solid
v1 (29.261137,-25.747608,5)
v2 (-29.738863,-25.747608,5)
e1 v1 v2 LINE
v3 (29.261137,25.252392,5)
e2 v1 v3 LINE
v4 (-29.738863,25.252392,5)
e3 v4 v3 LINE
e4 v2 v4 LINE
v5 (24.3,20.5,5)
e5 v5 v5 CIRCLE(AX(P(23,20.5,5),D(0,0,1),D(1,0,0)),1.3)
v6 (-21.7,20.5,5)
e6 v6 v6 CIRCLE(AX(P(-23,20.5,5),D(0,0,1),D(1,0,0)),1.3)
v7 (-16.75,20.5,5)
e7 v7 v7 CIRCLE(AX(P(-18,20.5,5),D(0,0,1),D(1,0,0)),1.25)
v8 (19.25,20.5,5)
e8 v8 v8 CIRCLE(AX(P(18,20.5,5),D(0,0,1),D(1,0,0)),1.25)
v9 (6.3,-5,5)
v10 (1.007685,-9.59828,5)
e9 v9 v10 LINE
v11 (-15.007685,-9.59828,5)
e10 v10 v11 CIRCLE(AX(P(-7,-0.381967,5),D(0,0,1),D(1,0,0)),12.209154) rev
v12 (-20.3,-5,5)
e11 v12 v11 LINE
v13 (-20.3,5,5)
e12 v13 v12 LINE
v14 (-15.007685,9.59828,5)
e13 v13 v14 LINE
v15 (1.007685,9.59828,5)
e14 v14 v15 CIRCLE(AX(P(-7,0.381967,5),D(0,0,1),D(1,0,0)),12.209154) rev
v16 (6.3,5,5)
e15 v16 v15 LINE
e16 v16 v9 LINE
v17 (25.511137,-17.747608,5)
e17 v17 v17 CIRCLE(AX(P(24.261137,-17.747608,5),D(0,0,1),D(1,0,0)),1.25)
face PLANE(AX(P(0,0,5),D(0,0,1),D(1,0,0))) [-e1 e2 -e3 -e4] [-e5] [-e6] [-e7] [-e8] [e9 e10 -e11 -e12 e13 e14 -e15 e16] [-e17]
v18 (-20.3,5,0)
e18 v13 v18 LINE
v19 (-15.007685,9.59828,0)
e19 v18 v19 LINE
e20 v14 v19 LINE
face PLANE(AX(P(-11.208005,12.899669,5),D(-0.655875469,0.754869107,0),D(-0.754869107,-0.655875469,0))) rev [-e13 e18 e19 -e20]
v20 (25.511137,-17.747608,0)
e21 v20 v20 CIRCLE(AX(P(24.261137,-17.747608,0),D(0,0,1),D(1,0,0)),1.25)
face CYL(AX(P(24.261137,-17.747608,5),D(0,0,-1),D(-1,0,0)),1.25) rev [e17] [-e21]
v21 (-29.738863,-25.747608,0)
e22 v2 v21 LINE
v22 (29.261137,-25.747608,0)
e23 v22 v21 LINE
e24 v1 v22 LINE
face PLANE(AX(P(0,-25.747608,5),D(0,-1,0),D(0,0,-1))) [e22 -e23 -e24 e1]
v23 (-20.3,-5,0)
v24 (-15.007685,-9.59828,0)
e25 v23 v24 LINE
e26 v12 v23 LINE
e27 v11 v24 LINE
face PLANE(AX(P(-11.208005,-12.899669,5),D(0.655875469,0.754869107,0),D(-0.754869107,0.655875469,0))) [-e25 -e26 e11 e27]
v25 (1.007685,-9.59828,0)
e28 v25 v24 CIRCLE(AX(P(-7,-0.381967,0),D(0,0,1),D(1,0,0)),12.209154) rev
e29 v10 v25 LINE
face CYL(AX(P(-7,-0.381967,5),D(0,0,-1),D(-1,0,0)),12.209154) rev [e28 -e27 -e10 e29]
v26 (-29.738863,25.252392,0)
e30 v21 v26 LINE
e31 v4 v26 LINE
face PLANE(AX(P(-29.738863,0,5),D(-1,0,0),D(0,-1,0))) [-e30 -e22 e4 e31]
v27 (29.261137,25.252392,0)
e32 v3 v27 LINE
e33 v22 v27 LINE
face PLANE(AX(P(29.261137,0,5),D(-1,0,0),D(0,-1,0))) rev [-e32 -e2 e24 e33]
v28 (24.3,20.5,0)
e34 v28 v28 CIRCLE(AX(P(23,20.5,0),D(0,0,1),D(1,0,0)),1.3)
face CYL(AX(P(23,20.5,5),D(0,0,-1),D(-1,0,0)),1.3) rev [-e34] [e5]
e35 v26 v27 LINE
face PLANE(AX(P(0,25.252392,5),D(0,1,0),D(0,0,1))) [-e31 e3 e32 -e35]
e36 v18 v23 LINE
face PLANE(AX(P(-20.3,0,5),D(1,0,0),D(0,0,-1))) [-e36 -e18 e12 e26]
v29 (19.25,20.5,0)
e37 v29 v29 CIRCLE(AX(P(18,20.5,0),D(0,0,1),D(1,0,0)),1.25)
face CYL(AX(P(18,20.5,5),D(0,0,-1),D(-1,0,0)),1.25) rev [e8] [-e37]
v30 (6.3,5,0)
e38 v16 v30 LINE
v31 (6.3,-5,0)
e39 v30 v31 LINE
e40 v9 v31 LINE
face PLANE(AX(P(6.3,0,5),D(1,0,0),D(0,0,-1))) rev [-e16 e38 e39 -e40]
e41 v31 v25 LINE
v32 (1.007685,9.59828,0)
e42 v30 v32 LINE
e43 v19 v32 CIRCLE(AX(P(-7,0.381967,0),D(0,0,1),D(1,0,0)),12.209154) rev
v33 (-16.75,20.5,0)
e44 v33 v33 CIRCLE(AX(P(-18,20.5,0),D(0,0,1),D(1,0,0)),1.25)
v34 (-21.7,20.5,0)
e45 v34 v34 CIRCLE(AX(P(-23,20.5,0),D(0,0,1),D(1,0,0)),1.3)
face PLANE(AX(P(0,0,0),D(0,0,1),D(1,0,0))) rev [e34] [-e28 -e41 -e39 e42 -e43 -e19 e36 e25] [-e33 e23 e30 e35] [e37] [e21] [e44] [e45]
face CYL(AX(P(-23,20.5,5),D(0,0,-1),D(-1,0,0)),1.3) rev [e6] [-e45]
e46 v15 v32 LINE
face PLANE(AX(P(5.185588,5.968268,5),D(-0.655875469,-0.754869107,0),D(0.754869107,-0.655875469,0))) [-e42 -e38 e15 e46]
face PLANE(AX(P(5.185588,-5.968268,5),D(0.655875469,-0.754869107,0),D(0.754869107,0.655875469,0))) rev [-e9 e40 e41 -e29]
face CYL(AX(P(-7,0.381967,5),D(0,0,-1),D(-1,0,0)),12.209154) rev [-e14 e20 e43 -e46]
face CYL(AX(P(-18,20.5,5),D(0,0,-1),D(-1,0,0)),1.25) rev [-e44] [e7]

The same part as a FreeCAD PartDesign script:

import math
import FreeCAD as App
import Part
import Sketcher


def add_polygon(sketch, points):
    """Adds a closed chain of lines whose ends are joined by coincident constraints."""
    first, n = sketch.GeometryCount, len(points)
    for a, b in zip(points, points[1:] + points[:1]):
        sketch.addGeometry(Part.LineSegment(App.Vector(*a, 0), App.Vector(*b, 0)), False)
    for i in range(n):
        sketch.addConstraint(Sketcher.Constraint("Coincident", first + i, 2, first + (i + 1) % n, 1))

doc = App.newDocument("Part")
params = doc.addObject("Spreadsheet::Sheet", "Params")
for row, (alias, value) in enumerate([
    ("sketch1_diameter", "2.5 mm"),
    ("sketch1_diameter2", "2.6 mm"),
    ("sketch1_width", "59 mm"),
    ("sketch1_height", "51 mm"),
    ("sketch1_height2", "10 mm"),
    ("pad1_length", "5 mm"),
], start=1):
    params.set(f"A{row}", alias)
    params.set(f"B{row}", "=" + value)
    params.setAlias(f"B{row}", alias)

body = doc.addObject("PartDesign::Body", "Body")

# Sketch on XY plane
sketch1 = doc.addObject("Sketcher::SketchObject", "Sketch")
body.addObject(sketch1)
sketch1.AttachmentSupport = (doc.XY_Plane, [""])
sketch1.MapMode = "FlatFace"
add_polygon(sketch1, [(-29.7, 25.3), (-29.7, -25.7), (29.3, -25.7), (29.3, 25.3)])  # lines 0-3
sketch1.addGeometry(Part.LineSegment(App.Vector(-20.3, -5, 0), App.Vector(-20.3, 5, 0)), False)  # 4
sketch1.addGeometry(Part.LineSegment(App.Vector(-20.3, 5, 0), App.Vector(-15, 9.6, 0)), False)  # 5
sketch1.addGeometry(Part.ArcOfCircle(Part.Circle(App.Vector(-7, 0.4, 0), App.Vector(0, 0, 1), 12.2), math.radians(49), math.radians(131)), False)  # 6
sketch1.addGeometry(Part.LineSegment(App.Vector(1, 9.6, 0), App.Vector(6.3, 5, 0)), False)  # 7
sketch1.addGeometry(Part.LineSegment(App.Vector(6.3, 5, 0), App.Vector(6.3, -5, 0)), False)  # 8
sketch1.addGeometry(Part.LineSegment(App.Vector(6.3, -5, 0), App.Vector(1, -9.6, 0)), False)  # 9
sketch1.addGeometry(Part.ArcOfCircle(Part.Circle(App.Vector(-7, -0.4, 0), App.Vector(0, 0, 1), 12.2), math.radians(-131), math.radians(-49)), False)  # 10
sketch1.addGeometry(Part.LineSegment(App.Vector(-15, -9.6, 0), App.Vector(-20.3, -5, 0)), False)  # 11
sketch1.addGeometry(Part.Circle(App.Vector(24.3, -17.7, 0), App.Vector(0, 0, 1), 1.2), False)  # 12
sketch1.addGeometry(Part.Circle(App.Vector(-23, 20.5, 0), App.Vector(0, 0, 1), 1.3), False)  # 13
sketch1.addGeometry(Part.Circle(App.Vector(-18, 20.5, 0), App.Vector(0, 0, 1), 1.2), False)  # 14
sketch1.addGeometry(Part.Circle(App.Vector(18, 20.5, 0), App.Vector(0, 0, 1), 1.2), False)  # 15
sketch1.addGeometry(Part.Circle(App.Vector(23, 20.5, 0), App.Vector(0, 0, 1), 1.3), False)  # 16
sketch1.addConstraint([
    Sketcher.Constraint("Coincident", 4, 2, 5, 1),
    Sketcher.Constraint("Tangent", 5, 2, 6, 2),
    Sketcher.Constraint("Tangent", 6, 1, 7, 1),
    Sketcher.Constraint("Coincident", 7, 2, 8, 1),
    Sketcher.Constraint("Coincident", 8, 2, 9, 1),
    Sketcher.Constraint("Tangent", 9, 2, 10, 2),
    Sketcher.Constraint("Tangent", 10, 1, 11, 1),
    Sketcher.Constraint("Coincident", 11, 2, 4, 1),
    Sketcher.Constraint("Vertical", 0),
    Sketcher.Constraint("Horizontal", 1),
    Sketcher.Constraint("Vertical", 2),
    Sketcher.Constraint("Horizontal", 3),
    Sketcher.Constraint("Vertical", 4),
    Sketcher.Constraint("Vertical", 8),
    Sketcher.Constraint("Equal", 6, 10),
    Sketcher.Constraint("Equal", 12, 14),
    Sketcher.Constraint("Equal", 14, 15),
    Sketcher.Constraint("Equal", 13, 16),
    Sketcher.Constraint("Symmetric", 14, 3, 15, 3, -2),
    Sketcher.Constraint("Symmetric", 13, 3, 16, 3, -2),
    Sketcher.Constraint("Symmetric", 6, 3, 10, 3, -1),
    Sketcher.Constraint("Parallel", 5, 9),
    Sketcher.Constraint("Parallel", 7, 11),
    Sketcher.Constraint("Horizontal", 13, 3, 14, 3),
    Sketcher.Constraint("Horizontal", 5, 2, 6, 1),
    Sketcher.Constraint("Horizontal", 4, 2, 7, 2),
    Sketcher.Constraint("Diameter", 12, 2.5),
    Sketcher.Constraint("Diameter", 13, 2.6),
    Sketcher.Constraint("DistanceX", 1, 1, 1, 2, 59.0),
    Sketcher.Constraint("DistanceY", 0, 2, 0, 1, 51.0),
    Sketcher.Constraint("DistanceY", 4, 1, 4, 2, 10.0),
    Sketcher.Constraint("DistanceX", 6, 3, -1, 1, 7.0),
    Sketcher.Constraint("DistanceX", 13, 3, -1, 1, 23.0),
    Sketcher.Constraint("DistanceX", 14, 3, -1, 1, 18.0),
    Sketcher.Constraint("DistanceX", 0, 2, 12, 3, 54.0),
    Sketcher.Constraint("DistanceY", 0, 2, 12, 3, 8.0),
    Sketcher.Constraint("DistanceY", -1, 1, 13, 3, 20.5),
    Sketcher.Constraint("DistanceX", 4, 2, -1, 1, 20.3),
    Sketcher.Constraint("Radius", 6, 12.209154),
    Sketcher.Constraint("DistanceY", -1, 1, 5, 2, 9.59828),
    Sketcher.Constraint("DistanceY", 12, 3, 10, 3, 17.36564),
    Sketcher.Constraint("DistanceX", -1, 1, 12, 3, 24.261137),
])
sketch1.setExpression("Constraints[30]", "Params.sketch1_diameter")
sketch1.setExpression("Constraints[31]", "Params.sketch1_diameter2")
sketch1.setExpression("Constraints[32]", "Params.sketch1_width")
sketch1.setExpression("Constraints[33]", "Params.sketch1_height")
sketch1.setExpression("Constraints[34]", "Params.sketch1_height2")
pad1 = doc.addObject("PartDesign::Pad", "Pad")
body.addObject(pad1)
pad1.Profile = sketch1
pad1.setExpression("Length", "Params.pad1_length")

doc.recompute()
